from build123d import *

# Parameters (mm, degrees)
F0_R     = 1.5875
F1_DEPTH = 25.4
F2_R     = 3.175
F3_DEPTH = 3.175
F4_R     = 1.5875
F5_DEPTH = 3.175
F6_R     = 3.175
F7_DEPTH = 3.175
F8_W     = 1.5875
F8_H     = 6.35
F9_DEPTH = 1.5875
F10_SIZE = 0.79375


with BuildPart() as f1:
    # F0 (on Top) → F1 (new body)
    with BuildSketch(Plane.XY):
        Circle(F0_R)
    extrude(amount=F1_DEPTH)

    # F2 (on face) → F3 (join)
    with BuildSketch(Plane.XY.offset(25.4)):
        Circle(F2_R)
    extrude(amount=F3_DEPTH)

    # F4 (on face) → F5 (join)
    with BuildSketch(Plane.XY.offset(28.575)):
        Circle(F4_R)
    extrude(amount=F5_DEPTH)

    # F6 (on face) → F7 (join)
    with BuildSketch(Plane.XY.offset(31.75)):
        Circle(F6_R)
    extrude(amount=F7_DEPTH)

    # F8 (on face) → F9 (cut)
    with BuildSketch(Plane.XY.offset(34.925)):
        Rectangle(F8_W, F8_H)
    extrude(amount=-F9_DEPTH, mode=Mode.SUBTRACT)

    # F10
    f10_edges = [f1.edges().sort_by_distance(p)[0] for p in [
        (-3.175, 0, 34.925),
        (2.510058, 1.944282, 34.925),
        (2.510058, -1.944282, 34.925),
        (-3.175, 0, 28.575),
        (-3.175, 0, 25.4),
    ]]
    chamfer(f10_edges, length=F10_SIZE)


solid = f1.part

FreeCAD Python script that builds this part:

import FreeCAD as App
import Part
import Sketcher
from FreeCAD import Vector
Q = App.Units.Quantity


def edges_at(feature, points):
    """Names of the edges that pass closest to the given points."""
    edges = feature.Shape.Edges
    near = lambda p: min(range(len(edges)), key=lambda i: edges[i].distToShape(Part.Vertex(*p))[0])
    return sorted({f"Edge{near(p) + 1}" for p in points})


def add_polygon(sketch, points):
    """Adds a closed chain of lines whose ends are joined by coincident constraints."""
    first, n = sketch.GeometryCount, len(points)
    for a, b in zip(points, points[1:] + points[:1]):
        sketch.addGeometry(Part.LineSegment(App.Vector(*a, 0), App.Vector(*b, 0)), False)
    for i in range(n):
        sketch.addConstraint(Sketcher.Constraint("Coincident", first + i, 2, first + (i + 1) % n, 1))

doc = App.newDocument("Part")
body = doc.addObject("PartDesign::Body", "Body")

# Sketch on XY plane
sketch1 = doc.addObject("Sketcher::SketchObject", "Sketch")
body.addObject(sketch1)
sketch1.AttachmentSupport = (doc.XY_Plane, [""])
sketch1.MapMode = "FlatFace"
sketch1.addGeometry(Part.Circle(Vector(0, 0, 0), Vector(0, 0, 1), 1.6), False)
sketch1.addConstraint([
    Sketcher.Constraint("Coincident", 0, 3, -1, 1),
    Sketcher.Constraint("Diameter", 0, Q("0.125 in")),
])
pad1 = doc.addObject("PartDesign::Pad", "Pad")
body.addObject(pad1)
pad1.Profile = sketch1
pad1.Length = Q("1 in")

# Sketch on XY plane
sketch2 = doc.addObject("Sketcher::SketchObject", "Sketch001")
body.addObject(sketch2)
sketch2.AttachmentSupport = (doc.XY_Plane, [""])
sketch2.MapMode = "FlatFace"
sketch2.AttachmentOffset = App.Placement(Vector(0, 0, 1 * 25.4), App.Rotation())
sketch2.addGeometry(Part.Circle(Vector(0, 0, 0), Vector(0, 0, 1), 3.2), False)
sketch2.addConstraint([
    Sketcher.Constraint("Coincident", 0, 3, -1, 1),
    Sketcher.Constraint("Diameter", 0, Q("0.25 in")),
])
pad2 = doc.addObject("PartDesign::Pad", "Pad001")
body.addObject(pad2)
pad2.Profile = sketch2
pad2.Length = Q("0.125 in")

# Sketch on XY plane
sketch3 = doc.addObject("Sketcher::SketchObject", "Sketch002")
body.addObject(sketch3)
sketch3.AttachmentSupport = (doc.XY_Plane, [""])
sketch3.MapMode = "FlatFace"
sketch3.AttachmentOffset = App.Placement(Vector(0, 0, 1.125 * 25.4), App.Rotation())
sketch3.addGeometry(Part.Circle(Vector(0, 0, 0), Vector(0, 0, 1), 1.6), False)
sketch3.addConstraint([
    Sketcher.Constraint("Coincident", 0, 3, -1, 1),
    Sketcher.Constraint("Diameter", 0, Q("0.125 in")),
])
pad3 = doc.addObject("PartDesign::Pad", "Pad002")
body.addObject(pad3)
pad3.Profile = sketch3
pad3.Length = Q("0.125 in")

# Sketch on XY plane
sketch4 = doc.addObject("Sketcher::SketchObject", "Sketch003")
body.addObject(sketch4)
sketch4.AttachmentSupport = (doc.XY_Plane, [""])
sketch4.MapMode = "FlatFace"
sketch4.AttachmentOffset = App.Placement(Vector(0, 0, 1.25 * 25.4), App.Rotation())
sketch4.addGeometry(Part.Circle(Vector(0, 0, 0), Vector(0, 0, 1), 3.2), False)
sketch4.addConstraint([
    Sketcher.Constraint("Coincident", 0, 3, -1, 1),
    Sketcher.Constraint("Diameter", 0, Q("0.25 in")),
])
pad4 = doc.addObject("PartDesign::Pad", "Pad003")
body.addObject(pad4)
pad4.Profile = sketch4
pad4.Length = Q("0.125 in")

# Sketch on XY plane
sketch5 = doc.addObject("Sketcher::SketchObject", "Sketch004")
body.addObject(sketch5)
sketch5.AttachmentSupport = (doc.XY_Plane, [""])
sketch5.MapMode = "FlatFace"
sketch5.AttachmentOffset = App.Placement(Vector(0, 0, 1.375 * 25.4), App.Rotation())
add_polygon(sketch5, [(-0.8, 3.2), (-0.8, -3.2), (0.8, -3.2), (0.8, 3.2)])  # lines 0-3
sketch5.addConstraint([
    Sketcher.Constraint("Vertical", 0),
    Sketcher.Constraint("Horizontal", 1),
    Sketcher.Constraint("Vertical", 2),
    Sketcher.Constraint("Horizontal", 3),
    Sketcher.Constraint("Symmetric", 0, 2, 2, 2, -1, 1),
    Sketcher.Constraint("DistanceY", 0, 2, 0, 1, Q("0.25 in")),
    Sketcher.Constraint("DistanceX", 1, 1, 1, 2, Q("0.0625 in")),
])
pocket1 = doc.addObject("PartDesign::Pocket", "Pocket")
body.addObject(pocket1)
pocket1.Profile = sketch5
pocket1.Length = Q("0.0625 in")
doc.recompute()

chamfer = doc.addObject("PartDesign::Chamfer", "Chamfer")
body.addObject(chamfer)
chamfer.Base = (pocket1, edges_at(pocket1, [
    (-3.175, 0, 34.925),
    (2.51, 1.944, 34.925),
    (2.51, -1.944, 34.925),
    (-3.175, 0, 28.575),
    (-3.175, 0, 25.4),
]))
chamfer.Size = Q("0.03125 in")

doc.recompute()
